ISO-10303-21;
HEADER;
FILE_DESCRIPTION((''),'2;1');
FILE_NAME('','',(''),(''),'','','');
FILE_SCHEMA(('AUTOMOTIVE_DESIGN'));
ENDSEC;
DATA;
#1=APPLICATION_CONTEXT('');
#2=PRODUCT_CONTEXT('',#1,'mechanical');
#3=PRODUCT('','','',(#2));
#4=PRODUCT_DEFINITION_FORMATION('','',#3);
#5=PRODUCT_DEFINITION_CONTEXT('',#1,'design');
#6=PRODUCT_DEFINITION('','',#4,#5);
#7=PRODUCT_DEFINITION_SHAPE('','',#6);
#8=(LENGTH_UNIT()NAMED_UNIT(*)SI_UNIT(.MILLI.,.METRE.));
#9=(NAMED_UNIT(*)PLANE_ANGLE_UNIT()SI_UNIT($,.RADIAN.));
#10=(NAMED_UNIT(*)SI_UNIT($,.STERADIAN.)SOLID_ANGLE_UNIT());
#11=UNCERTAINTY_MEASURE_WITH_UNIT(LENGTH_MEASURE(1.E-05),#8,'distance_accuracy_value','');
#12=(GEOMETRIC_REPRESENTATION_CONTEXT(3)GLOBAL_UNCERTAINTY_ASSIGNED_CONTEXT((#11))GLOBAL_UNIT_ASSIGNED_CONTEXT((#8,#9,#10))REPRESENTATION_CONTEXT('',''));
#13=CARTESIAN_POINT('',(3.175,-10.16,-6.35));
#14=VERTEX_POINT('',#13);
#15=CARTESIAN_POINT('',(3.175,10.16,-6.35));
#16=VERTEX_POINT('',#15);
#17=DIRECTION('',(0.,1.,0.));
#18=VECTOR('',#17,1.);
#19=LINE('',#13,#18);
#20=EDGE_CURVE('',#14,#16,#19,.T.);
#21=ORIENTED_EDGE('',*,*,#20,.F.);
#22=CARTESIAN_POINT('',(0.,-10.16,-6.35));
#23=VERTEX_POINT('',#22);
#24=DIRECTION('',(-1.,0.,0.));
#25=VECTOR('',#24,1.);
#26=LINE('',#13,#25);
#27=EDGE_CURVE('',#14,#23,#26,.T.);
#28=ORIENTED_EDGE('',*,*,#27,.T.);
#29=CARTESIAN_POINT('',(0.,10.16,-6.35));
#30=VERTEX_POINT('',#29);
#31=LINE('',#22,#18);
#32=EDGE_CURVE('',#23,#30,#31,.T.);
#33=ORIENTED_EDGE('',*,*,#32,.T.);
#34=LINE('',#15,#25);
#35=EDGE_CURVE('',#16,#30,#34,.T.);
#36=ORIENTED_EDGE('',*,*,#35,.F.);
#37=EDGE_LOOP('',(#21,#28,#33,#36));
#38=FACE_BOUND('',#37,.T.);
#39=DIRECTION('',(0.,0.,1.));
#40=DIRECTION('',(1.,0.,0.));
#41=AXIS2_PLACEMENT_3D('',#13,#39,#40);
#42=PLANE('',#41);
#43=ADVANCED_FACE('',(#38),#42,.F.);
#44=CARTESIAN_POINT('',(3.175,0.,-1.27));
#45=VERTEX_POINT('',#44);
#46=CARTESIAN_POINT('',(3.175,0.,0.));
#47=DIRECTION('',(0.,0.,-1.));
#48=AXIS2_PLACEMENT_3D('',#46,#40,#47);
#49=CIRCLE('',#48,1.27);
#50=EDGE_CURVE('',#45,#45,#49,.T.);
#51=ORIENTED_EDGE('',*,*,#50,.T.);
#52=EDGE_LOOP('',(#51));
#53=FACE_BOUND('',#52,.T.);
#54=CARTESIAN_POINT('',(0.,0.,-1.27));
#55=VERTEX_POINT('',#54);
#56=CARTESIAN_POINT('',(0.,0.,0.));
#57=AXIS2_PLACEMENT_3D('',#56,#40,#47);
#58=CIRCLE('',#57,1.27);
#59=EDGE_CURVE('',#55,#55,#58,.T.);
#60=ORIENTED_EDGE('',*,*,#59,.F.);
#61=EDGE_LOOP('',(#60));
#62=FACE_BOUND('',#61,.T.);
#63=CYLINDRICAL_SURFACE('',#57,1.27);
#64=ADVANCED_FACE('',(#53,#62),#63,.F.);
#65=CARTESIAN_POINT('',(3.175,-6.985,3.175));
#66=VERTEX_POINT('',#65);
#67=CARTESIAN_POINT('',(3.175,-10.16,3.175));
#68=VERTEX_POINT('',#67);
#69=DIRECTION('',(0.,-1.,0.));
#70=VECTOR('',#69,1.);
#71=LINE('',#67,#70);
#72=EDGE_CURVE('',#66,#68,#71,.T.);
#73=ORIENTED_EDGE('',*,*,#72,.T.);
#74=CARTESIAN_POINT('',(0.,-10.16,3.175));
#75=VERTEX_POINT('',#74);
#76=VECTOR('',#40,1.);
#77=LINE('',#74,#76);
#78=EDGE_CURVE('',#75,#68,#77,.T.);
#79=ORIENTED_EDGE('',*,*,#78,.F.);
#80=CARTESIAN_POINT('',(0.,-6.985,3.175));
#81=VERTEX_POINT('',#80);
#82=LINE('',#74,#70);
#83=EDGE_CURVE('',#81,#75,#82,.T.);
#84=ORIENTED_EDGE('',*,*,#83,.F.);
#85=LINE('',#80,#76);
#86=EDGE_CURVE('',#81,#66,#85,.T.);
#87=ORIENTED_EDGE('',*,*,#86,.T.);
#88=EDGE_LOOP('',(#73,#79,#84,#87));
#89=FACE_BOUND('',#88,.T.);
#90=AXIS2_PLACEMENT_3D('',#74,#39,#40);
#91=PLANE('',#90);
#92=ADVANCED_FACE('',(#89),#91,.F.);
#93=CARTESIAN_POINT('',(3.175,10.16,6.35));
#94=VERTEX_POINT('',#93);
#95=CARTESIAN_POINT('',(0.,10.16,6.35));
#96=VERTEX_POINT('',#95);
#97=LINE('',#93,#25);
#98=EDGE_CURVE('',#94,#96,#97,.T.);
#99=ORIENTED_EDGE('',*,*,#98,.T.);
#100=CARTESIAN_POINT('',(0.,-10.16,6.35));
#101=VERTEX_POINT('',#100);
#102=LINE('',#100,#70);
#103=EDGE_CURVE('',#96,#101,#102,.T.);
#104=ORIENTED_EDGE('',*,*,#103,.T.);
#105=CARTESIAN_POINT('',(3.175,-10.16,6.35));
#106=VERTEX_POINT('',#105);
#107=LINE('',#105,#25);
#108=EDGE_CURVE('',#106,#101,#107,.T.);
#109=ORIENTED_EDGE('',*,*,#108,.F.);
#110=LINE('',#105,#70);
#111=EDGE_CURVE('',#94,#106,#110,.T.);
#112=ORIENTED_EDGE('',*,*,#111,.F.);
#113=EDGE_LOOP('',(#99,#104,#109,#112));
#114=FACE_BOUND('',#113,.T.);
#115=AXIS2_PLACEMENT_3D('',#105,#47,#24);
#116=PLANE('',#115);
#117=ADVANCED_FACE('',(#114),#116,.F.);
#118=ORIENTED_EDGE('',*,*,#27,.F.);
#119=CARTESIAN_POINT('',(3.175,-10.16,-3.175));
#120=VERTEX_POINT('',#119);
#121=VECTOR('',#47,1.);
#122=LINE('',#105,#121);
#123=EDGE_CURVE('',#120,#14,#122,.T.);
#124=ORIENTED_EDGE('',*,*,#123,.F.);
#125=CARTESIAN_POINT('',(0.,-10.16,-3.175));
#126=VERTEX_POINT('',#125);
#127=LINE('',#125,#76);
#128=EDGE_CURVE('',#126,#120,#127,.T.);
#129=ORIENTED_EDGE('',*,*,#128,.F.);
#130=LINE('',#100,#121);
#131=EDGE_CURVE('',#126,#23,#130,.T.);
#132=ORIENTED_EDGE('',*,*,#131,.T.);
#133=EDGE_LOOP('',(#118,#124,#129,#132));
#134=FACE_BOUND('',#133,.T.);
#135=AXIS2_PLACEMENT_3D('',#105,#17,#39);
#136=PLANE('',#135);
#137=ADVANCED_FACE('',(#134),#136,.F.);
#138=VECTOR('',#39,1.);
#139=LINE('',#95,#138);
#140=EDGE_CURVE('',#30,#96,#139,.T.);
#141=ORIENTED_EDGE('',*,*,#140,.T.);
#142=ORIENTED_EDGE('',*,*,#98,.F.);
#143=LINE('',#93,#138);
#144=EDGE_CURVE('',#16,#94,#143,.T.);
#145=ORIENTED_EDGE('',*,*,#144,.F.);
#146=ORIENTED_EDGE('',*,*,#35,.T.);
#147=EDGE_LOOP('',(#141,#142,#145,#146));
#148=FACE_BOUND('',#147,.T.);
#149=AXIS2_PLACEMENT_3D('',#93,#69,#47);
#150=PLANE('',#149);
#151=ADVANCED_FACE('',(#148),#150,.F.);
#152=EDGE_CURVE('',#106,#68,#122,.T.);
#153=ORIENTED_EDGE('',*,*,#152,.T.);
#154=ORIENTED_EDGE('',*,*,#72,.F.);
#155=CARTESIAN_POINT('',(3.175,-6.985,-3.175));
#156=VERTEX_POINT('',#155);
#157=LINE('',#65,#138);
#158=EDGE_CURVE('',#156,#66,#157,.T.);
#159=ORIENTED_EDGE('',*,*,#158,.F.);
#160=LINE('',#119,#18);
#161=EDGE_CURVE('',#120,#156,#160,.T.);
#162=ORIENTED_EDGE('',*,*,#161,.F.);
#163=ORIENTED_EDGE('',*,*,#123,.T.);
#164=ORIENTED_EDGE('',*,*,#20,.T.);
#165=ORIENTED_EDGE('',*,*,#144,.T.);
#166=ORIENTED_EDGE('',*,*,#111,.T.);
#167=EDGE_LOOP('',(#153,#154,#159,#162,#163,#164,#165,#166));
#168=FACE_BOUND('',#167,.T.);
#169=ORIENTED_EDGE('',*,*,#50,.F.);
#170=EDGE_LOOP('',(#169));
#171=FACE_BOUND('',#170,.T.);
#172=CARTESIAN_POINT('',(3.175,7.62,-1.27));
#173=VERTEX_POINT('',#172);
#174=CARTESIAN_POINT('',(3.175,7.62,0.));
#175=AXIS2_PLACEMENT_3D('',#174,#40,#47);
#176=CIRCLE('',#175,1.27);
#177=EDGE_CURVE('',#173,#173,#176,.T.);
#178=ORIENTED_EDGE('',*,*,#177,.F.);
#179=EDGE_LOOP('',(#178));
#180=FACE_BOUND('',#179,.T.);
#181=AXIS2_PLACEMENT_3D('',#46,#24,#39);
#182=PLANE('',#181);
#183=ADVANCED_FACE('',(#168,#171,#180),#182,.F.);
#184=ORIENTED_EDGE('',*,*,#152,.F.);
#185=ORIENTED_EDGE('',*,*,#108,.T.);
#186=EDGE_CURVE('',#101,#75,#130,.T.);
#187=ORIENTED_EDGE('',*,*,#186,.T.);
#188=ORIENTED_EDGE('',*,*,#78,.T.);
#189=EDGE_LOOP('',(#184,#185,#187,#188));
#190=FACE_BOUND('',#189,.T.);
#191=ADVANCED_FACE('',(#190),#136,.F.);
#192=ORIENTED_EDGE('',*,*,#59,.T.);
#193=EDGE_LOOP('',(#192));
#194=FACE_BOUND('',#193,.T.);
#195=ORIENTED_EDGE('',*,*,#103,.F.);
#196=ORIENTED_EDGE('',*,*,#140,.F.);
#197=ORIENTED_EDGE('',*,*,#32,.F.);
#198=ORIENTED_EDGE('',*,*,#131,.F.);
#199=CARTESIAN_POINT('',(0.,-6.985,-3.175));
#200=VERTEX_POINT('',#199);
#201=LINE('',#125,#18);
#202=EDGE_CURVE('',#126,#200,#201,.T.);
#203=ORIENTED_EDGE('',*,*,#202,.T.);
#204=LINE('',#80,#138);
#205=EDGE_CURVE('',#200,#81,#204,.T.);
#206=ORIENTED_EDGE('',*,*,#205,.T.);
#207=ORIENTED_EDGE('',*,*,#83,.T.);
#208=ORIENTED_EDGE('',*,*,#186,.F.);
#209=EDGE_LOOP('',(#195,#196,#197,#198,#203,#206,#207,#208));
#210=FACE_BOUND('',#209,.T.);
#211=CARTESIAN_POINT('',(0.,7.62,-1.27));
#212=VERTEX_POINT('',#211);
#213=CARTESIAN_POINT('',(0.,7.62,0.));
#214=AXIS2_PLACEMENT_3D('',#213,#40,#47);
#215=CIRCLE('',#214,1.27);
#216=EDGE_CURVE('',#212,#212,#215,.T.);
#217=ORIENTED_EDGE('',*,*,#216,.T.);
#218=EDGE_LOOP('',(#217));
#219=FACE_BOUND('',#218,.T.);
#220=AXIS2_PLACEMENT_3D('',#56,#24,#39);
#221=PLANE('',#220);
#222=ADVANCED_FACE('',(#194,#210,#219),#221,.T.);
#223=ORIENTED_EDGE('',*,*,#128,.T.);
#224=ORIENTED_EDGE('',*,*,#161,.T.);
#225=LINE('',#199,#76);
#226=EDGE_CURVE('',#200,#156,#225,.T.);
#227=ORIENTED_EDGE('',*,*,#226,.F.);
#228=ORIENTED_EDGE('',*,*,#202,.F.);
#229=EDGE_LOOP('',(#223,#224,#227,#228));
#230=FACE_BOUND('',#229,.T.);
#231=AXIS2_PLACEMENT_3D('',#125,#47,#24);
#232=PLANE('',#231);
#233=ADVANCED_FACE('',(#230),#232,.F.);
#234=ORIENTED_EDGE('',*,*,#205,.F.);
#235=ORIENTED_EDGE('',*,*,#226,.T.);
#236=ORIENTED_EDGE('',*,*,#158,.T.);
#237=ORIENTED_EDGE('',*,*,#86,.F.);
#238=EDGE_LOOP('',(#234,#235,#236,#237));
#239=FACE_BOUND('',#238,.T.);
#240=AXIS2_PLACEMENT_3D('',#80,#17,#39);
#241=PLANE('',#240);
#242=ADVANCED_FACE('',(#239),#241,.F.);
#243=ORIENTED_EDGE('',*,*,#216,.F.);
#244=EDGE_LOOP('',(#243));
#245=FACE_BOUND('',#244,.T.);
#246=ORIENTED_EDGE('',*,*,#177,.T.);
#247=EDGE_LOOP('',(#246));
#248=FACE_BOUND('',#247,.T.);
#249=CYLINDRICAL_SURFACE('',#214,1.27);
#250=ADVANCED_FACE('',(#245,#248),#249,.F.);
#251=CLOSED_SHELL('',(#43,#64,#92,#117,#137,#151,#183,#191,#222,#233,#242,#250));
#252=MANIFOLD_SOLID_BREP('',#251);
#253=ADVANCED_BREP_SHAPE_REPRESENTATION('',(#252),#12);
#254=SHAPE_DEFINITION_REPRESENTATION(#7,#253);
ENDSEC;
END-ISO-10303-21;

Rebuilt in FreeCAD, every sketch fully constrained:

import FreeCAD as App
import Part
import Sketcher

V = App.Vector
Q = App.Units.Quantity

doc = App.newDocument("Part")
params = doc.addObject("Spreadsheet::Sheet", "Params")
for row, (alias, value) in enumerate([
    ("sketch1_width", "0.8 in"),
    ("sketch1_height", "0.5 in"),
    ("pad1_length", "0.125 in"),
    ("sketch2_height", "0.25 in"),
    ("sketch2_width", "0.125 in"),
    ("sketch3_diameter", "0.1 in"),
], start=1):
    params.set(f"A{row}", alias)
    params.set(f"B{row}", "=" + value)
    params.setAlias(f"B{row}", alias)

body = doc.addObject("PartDesign::Body", "Body")

# Sketch on YZ plane
sketch1 = body.newObject("Sketcher::SketchObject", "Sketch")
sketch1.AttachmentSupport = (doc.getObject("YZ_Plane"), [""])
sketch1.MapMode = "FlatFace"
sketch1.addGeometry(Part.LineSegment(V(10, 6, 0), V(-10, 6, 0)), False)
sketch1.addGeometry(Part.LineSegment(V(-10, 6, 0), V(-10, -6, 0)), False)
sketch1.addGeometry(Part.LineSegment(V(-10, -6, 0), V(10, -6, 0)), False)
sketch1.addGeometry(Part.LineSegment(V(10, -6, 0), V(10, 6, 0)), False)
sketch1.addConstraint(Sketcher.Constraint("Coincident", 0, 2, 1, 1))
sketch1.addConstraint(Sketcher.Constraint("Coincident", 1, 2, 2, 1))
sketch1.addConstraint(Sketcher.Constraint("Coincident", 2, 2, 3, 1))
sketch1.addConstraint(Sketcher.Constraint("Coincident", 3, 2, 0, 1))
sketch1.addConstraint(Sketcher.Constraint("Horizontal", 0))
sketch1.addConstraint(Sketcher.Constraint("Vertical", 1))
sketch1.addConstraint(Sketcher.Constraint("Horizontal", 2))
sketch1.addConstraint(Sketcher.Constraint("Vertical", 3))
sketch1.addConstraint(Sketcher.Constraint("Symmetric", 0, 2, 2, 2, -1, 1))
sketch1.addConstraint(Sketcher.Constraint("DistanceX", 0, 2, 0, 1, Q("0.8 in")))
sketch1.addConstraint(Sketcher.Constraint("DistanceY", 1, 2, 1, 1, Q("0.5 in")))
sketch1.setExpression("Constraints[9]", "Params.sketch1_width")
sketch1.setExpression("Constraints[10]", "Params.sketch1_height")
pad1 = body.newObject("PartDesign::Pad", "Pad")
pad1.Profile = sketch1
pad1.setExpression("Length", "Params.pad1_length")

# Sketch on YZ plane
sketch2 = body.newObject("Sketcher::SketchObject", "Sketch001")
sketch2.AttachmentSupport = (doc.getObject("YZ_Plane"), [""])
sketch2.MapMode = "FlatFace"
sketch2.AttachmentOffset = App.Placement(V(0, 0, 0.125 * 25.4), App.Rotation())
sketch2.addGeometry(Part.LineSegment(V(-7, 3.2, 0), V(-10.2, 3.2, 0)), False)
sketch2.addGeometry(Part.LineSegment(V(-10.2, 3.2, 0), V(-10.2, -3.2, 0)), False)
sketch2.addGeometry(Part.LineSegment(V(-10.2, -3.2, 0), V(-7, -3.2, 0)), False)
sketch2.addGeometry(Part.LineSegment(V(-7, -3.2, 0), V(-7, 3.2, 0)), False)
sketch2.addConstraint(Sketcher.Constraint("Coincident", 0, 2, 1, 1))
sketch2.addConstraint(Sketcher.Constraint("Coincident", 1, 2, 2, 1))
sketch2.addConstraint(Sketcher.Constraint("Coincident", 2, 2, 3, 1))
sketch2.addConstraint(Sketcher.Constraint("Coincident", 3, 2, 0, 1))
sketch2.addConstraint(Sketcher.Constraint("Horizontal", 0))
sketch2.addConstraint(Sketcher.Constraint("Vertical", 1))
sketch2.addConstraint(Sketcher.Constraint("Horizontal", 2))
sketch2.addConstraint(Sketcher.Constraint("Vertical", 3))
sketch2.addConstraint(Sketcher.Constraint("DistanceY", 1, 2, 1, 1, Q("0.25 in")))
sketch2.addConstraint(Sketcher.Constraint("DistanceX", 0, 2, -1, 1, Q("0.4 in")))
sketch2.addConstraint(Sketcher.Constraint("DistanceX", 0, 2, 0, 1, Q("0.125 in")))
sketch2.addConstraint(Sketcher.Constraint("DistanceY", -1, 1, 0, 2, Q("0.125 in")))
sketch2.setExpression("Constraints[8]", "Params.sketch2_height")
sketch2.setExpression("Constraints[10]", "Params.sketch2_width")
pocket1 = body.newObject("PartDesign::Pocket", "Pocket")
pocket1.Profile = sketch2
pocket1.Type = "ThroughAll"

# Sketch on YZ plane
sketch3 = body.newObject("Sketcher::SketchObject", "Sketch002")
sketch3.AttachmentSupport = (doc.getObject("YZ_Plane"), [""])
sketch3.MapMode = "FlatFace"
sketch3.AttachmentOffset = App.Placement(V(0, 0, 0.125 * 25.4), App.Rotation())
sketch3.addGeometry(Part.Circle(V(0, 0, 0), V(0, 0, 1), 1.3), False)
sketch3.addGeometry(Part.Circle(V(7.6, 0, 0), V(0, 0, 1), 1.3), False)
sketch3.addConstraint(Sketcher.Constraint("Coincident", 0, 3, -1, 1))
sketch3.addConstraint(Sketcher.Constraint("Equal", 0, 1))
sketch3.addConstraint(Sketcher.Constraint("PointOnObject", 1, 3, -1))
sketch3.addConstraint(Sketcher.Constraint("Diameter", 0, Q("0.1 in")))
sketch3.addConstraint(Sketcher.Constraint("DistanceX", -1, 1, 1, 3, Q("0.3 in")))
sketch3.setExpression("Constraints[3]", "Params.sketch3_diameter")
pocket2 = body.newObject("PartDesign::Pocket", "Pocket001")
pocket2.Profile = sketch3
pocket2.Type = "ThroughAll"

doc.recompute()
